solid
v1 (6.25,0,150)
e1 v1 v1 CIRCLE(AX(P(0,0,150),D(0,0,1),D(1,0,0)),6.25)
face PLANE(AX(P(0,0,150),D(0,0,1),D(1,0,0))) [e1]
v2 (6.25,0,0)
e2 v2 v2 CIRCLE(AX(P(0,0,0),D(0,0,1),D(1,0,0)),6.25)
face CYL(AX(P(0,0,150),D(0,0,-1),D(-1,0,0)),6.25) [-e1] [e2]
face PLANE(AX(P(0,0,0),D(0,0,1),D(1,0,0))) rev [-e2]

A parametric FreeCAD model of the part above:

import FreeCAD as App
import Part
import Sketcher

V = App.Vector
Q = App.Units.Quantity

doc = App.newDocument("Part")
body = doc.addObject("PartDesign::Body", "Body")

sketch1 = doc.addObject("Sketcher::SketchObject", "Sketch")
body.addObject(sketch1)
sketch1.AttachmentSupport = (doc.XY_Plane, [""])
sketch1.MapMode = "FlatFace"
sketch1.addGeometry(Part.Circle(V(0, 0, 0), V(0, 0, 1), 6.25), False)
sketch1.addConstraint([
    Sketcher.Constraint("Coincident", 0, 3, -1, 1),
    Sketcher.Constraint("Diameter", 0, Q("12.5 mm")),
])
pad1 = doc.addObject("PartDesign::Pad", "Pad")
body.addObject(pad1)
pad1.Profile = sketch1
pad1.Length = 150

doc.recompute()
